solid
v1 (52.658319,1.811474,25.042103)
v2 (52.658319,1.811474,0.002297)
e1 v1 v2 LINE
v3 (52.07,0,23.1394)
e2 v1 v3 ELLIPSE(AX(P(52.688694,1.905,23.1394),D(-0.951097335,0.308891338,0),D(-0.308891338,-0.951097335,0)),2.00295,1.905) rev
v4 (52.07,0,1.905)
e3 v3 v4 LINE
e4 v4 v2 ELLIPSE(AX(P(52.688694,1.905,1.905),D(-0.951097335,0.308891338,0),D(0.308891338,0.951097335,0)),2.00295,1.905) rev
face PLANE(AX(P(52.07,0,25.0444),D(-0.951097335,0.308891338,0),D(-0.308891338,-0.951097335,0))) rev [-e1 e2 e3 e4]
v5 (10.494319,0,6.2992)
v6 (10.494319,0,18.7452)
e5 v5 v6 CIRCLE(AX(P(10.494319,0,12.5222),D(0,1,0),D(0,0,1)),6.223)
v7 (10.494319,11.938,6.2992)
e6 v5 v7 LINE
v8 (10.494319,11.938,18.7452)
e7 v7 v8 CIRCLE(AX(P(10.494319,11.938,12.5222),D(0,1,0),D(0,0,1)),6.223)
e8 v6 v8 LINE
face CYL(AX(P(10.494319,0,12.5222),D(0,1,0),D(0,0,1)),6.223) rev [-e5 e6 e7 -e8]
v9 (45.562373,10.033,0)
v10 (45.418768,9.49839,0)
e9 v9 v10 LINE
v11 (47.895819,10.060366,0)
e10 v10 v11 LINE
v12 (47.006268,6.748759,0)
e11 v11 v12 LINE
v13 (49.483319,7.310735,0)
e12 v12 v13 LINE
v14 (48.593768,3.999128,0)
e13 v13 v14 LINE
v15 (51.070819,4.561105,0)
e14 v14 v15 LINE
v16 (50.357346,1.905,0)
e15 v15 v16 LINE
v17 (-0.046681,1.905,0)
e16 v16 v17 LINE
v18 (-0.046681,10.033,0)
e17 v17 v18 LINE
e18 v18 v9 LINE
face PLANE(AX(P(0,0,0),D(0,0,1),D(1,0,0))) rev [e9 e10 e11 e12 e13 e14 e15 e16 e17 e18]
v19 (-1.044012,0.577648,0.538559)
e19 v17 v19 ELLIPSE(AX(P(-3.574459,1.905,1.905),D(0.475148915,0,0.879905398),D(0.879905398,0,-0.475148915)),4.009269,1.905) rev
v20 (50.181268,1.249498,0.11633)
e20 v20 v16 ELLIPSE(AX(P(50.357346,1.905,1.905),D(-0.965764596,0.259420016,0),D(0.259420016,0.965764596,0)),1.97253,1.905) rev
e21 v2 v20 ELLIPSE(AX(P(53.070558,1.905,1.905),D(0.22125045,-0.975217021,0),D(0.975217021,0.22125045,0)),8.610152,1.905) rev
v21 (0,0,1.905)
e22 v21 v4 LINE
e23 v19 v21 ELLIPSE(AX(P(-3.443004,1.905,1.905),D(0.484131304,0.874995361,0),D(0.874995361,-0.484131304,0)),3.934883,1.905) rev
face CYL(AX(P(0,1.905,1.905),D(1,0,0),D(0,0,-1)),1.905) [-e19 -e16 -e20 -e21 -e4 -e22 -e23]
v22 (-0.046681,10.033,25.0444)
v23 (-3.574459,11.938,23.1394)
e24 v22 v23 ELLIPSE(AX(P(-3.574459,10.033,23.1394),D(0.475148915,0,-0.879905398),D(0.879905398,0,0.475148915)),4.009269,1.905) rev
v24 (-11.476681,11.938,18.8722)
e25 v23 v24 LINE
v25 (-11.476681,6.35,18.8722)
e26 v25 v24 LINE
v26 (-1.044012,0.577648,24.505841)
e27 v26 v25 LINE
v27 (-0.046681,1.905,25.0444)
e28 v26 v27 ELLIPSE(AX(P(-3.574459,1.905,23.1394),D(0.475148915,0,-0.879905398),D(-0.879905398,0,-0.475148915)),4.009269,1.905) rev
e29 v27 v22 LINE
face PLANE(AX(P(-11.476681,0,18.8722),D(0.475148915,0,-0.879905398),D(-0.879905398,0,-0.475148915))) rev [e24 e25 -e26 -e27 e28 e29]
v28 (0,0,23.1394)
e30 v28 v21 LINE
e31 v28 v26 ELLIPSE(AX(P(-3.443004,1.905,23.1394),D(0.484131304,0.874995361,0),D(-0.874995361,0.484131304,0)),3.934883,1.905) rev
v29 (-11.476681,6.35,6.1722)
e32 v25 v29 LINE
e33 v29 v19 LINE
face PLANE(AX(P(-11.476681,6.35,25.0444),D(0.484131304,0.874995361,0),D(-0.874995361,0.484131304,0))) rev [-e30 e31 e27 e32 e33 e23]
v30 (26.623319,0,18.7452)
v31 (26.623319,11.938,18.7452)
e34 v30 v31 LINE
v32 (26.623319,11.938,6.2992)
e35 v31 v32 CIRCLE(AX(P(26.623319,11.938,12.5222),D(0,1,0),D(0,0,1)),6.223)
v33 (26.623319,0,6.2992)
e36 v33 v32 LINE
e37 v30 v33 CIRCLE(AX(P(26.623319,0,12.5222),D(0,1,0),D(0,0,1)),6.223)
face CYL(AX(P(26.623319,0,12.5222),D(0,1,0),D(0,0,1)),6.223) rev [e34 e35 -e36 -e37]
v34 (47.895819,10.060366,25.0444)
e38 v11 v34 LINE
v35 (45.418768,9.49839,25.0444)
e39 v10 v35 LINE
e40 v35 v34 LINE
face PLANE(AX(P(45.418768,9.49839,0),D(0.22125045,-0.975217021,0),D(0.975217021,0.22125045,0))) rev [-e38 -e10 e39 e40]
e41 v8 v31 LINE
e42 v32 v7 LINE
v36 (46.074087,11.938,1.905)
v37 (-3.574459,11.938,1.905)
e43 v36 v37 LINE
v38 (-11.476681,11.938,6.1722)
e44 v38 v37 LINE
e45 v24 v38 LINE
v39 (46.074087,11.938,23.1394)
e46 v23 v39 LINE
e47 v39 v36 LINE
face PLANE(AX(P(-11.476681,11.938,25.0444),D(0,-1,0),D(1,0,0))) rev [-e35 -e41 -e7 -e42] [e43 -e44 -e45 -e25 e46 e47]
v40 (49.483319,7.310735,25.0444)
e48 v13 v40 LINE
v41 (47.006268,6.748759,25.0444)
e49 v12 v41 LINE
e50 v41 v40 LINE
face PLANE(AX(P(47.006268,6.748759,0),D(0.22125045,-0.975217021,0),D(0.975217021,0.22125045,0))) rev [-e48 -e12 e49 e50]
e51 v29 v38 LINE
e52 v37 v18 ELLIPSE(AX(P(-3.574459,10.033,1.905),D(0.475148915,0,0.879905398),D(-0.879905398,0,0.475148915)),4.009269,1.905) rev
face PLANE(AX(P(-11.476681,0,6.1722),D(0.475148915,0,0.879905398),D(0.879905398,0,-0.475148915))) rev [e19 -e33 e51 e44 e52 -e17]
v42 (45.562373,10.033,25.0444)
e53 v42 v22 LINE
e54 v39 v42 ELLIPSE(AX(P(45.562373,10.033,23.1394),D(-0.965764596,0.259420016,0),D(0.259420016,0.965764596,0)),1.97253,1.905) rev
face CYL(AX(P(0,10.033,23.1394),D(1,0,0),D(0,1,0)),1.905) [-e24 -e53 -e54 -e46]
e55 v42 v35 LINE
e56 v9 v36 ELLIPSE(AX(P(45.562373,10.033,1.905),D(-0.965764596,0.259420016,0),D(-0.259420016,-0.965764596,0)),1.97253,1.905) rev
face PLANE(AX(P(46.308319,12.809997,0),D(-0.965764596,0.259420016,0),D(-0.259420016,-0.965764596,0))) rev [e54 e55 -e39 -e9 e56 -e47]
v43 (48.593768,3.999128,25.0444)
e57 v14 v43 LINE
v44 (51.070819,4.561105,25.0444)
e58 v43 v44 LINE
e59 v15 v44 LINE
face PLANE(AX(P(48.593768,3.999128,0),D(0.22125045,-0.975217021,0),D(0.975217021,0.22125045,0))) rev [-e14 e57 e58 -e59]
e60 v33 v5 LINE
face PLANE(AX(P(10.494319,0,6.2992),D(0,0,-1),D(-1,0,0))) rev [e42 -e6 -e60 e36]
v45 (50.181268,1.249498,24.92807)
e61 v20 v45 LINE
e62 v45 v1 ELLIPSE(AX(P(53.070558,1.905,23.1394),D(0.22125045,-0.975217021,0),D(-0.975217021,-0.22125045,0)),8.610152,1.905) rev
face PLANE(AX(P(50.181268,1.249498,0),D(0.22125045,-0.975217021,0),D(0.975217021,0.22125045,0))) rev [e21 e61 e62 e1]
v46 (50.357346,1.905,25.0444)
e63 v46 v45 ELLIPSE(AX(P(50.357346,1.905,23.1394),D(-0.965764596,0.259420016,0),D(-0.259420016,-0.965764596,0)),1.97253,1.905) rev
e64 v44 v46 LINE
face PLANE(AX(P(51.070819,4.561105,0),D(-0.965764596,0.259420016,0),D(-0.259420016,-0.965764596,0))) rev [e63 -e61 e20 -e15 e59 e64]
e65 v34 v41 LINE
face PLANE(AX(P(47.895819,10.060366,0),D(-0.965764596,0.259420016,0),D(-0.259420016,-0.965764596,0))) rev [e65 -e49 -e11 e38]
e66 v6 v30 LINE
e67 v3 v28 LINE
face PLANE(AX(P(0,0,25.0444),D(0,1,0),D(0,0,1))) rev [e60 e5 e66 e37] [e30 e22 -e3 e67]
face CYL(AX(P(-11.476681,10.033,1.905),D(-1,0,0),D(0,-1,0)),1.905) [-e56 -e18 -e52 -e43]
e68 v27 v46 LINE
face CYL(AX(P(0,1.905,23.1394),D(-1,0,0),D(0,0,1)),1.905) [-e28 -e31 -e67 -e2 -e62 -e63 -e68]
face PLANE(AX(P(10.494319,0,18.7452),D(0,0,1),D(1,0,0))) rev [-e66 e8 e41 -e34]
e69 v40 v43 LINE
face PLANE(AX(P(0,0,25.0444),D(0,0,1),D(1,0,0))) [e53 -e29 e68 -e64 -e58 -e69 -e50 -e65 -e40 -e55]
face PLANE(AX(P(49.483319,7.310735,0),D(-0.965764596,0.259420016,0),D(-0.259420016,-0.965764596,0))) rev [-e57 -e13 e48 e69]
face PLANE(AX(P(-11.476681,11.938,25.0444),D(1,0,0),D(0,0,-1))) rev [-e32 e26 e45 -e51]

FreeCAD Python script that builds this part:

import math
import FreeCAD as App
import Part
import Sketcher
Q = App.Units.Quantity


def edges_at(feature, points):
    """Names of the edges that pass closest to the given points."""
    edges = feature.Shape.Edges
    near = lambda p: min(range(len(edges)), key=lambda i: edges[i].distToShape(Part.Vertex(*p))[0])
    return sorted({f"Edge{near(p) + 1}" for p in points})

doc = App.newDocument("Part")
body = doc.addObject("PartDesign::Body", "Body")

# Sketch on XY plane
sketch1 = body.newObject("Sketcher::SketchObject", "Sketch")
sketch1.AttachmentSupport = (doc.getObject("XY_Plane"), [""])
sketch1.MapMode = "FlatFace"
sketch1.addGeometry(Part.LineSegment(App.Vector(0, 0, 0), App.Vector(52.07, 0, 0)), False)
sketch1.addGeometry(Part.LineSegment(App.Vector(52.07, 0, 0), App.Vector(52.658319, 1.811474, 0)), False)
sketch1.addGeometry(Part.LineSegment(App.Vector(52.658319, 1.811474, 0), App.Vector(46.811766, 11.938, 0)), False)
sketch1.addGeometry(Part.LineSegment(App.Vector(46.811766, 11.938, 0), App.Vector(-11.476681, 11.938, 0)), False)
sketch1.addGeometry(Part.LineSegment(App.Vector(-11.476681, 11.938, 0), App.Vector(-11.476681, 6.35, 0)), False)
sketch1.addGeometry(Part.LineSegment(App.Vector(-11.476681, 6.35, 0), App.Vector(0, 0, 0)), False)
sketch1.addConstraint(Sketcher.Constraint("Coincident", 0, 2, 1, 1))
sketch1.addConstraint(Sketcher.Constraint("Coincident", 1, 2, 2, 1))
sketch1.addConstraint(Sketcher.Constraint("Coincident", 2, 2, 3, 1))
sketch1.addConstraint(Sketcher.Constraint("Coincident", 3, 2, 4, 1))
sketch1.addConstraint(Sketcher.Constraint("Coincident", 4, 2, 5, 1))
sketch1.addConstraint(Sketcher.Constraint("Coincident", 5, 2, 0, 1))
sketch1.addConstraint(Sketcher.Constraint("Horizontal", 0))
sketch1.addConstraint(Sketcher.Constraint("Horizontal", 3))
sketch1.addConstraint(Sketcher.Constraint("Vertical", 4))
sketch1.addConstraint(Sketcher.Constraint("Coincident", 5, 2, -1, 1))
sketch1.addConstraint(Sketcher.Constraint("Angle", 2, Q("120 deg")))
sketch1.addConstraint(Sketcher.Constraint("DistanceX", 0, 1, 0, 2, Q("2.05 in")))
sketch1.addConstraint(Sketcher.Constraint("DistanceY", 4, 2, 4, 1, Q("0.22 in")))
sketch1.addConstraint(Sketcher.Constraint("DistanceY", -1, 1, 2, 2, Q("0.47 in")))
sketch1.addConstraint(Sketcher.Constraint("DistanceX", 3, 2, 1, 2, Q("2.525 in")))
sketch1.addConstraint(Sketcher.Constraint("DistanceX", 3, 2, 3, 1, 58.288447))
sketch1.addConstraint(Sketcher.Constraint("DistanceX", -1, 1, 1, 2, 52.658319))
pad1 = body.newObject("PartDesign::Pad", "Pad")
pad1.Profile = sketch1
pad1.Length = Q("0.986 in")

# Sketch on XY plane
sketch2 = body.newObject("Sketcher::SketchObject", "Sketch001")
sketch2.AttachmentSupport = (doc.getObject("XY_Plane"), [""])
sketch2.MapMode = "FlatFace"
sketch2.AttachmentOffset = App.Placement(App.Vector(0, 0, 0.986 * 25.4), App.Rotation())
sketch2.addGeometry(Part.LineSegment(App.Vector(51.070819, 4.561105, 0), App.Vector(50.181268, 1.249498, 0)), False)
sketch2.addGeometry(Part.LineSegment(App.Vector(50.181268, 1.249498, 0), App.Vector(52.658319, 1.811474, 0)), False)
sketch2.addGeometry(Part.LineSegment(App.Vector(52.658319, 1.811474, 0), App.Vector(51.070819, 4.561105, 0)), False)
sketch2.addConstraint(Sketcher.Constraint("Coincident", 0, 2, 1, 1))
sketch2.addConstraint(Sketcher.Constraint("Coincident", 1, 2, 2, 1))
sketch2.addConstraint(Sketcher.Constraint("Coincident", 2, 2, 0, 1))
sketch2.addConstraint(Sketcher.Constraint("Angle", 2, Q("120 deg")))
sketch2.addConstraint(Sketcher.Constraint("Distance", 1, Q("0.1 in")))
sketch2.addConstraint(Sketcher.Constraint("Distance", 0, Q("0.135 in")))
sketch2.addConstraint(Sketcher.Constraint("Distance", 2, Q("0.125 in")))
sketch2.addConstraint(Sketcher.Constraint("DistanceX", -1, 1, 1, 2, 52.658319))
sketch2.addConstraint(Sketcher.Constraint("DistanceY", -1, 1, 0, 2, 1.249498))
pocket1 = body.newObject("PartDesign::Pocket", "Pocket")
pocket1.Profile = sketch2
pocket1.Type = "ThroughAll"
doc.recompute()

datumline = body.newObject("PartDesign::Line", "DatumLine")
datumline.Placement = App.Placement(App.Vector(0, 0, 0), App.Rotation(App.Vector(0, 0, 1), App.Vector(-0.5, 0.866025404, 0)))
linearpattern = body.newObject("PartDesign::LinearPattern", "LinearPattern")
linearpattern.Originals = [pocket1]
linearpattern.Direction = (datumline, [""])
linearpattern.Mode = "offset"
linearpattern.Offset = Q("0.125 in")
linearpattern.Occurrences = 11
body.Tip = linearpattern

# Sketch on XZ plane
sketch3 = body.newObject("Sketcher::SketchObject", "Sketch002")
sketch3.AttachmentSupport = (doc.getObject("XZ_Plane"), [""])
sketch3.MapMode = "FlatFace"
sketch3.AttachmentOffset = App.Placement(App.Vector(0, 0, -0.47 * 25.4), App.Rotation())
sketch3.addGeometry(Part.LineSegment(App.Vector(26.623319, 6.2992, 0), App.Vector(10.494319, 6.2992, 0)), False)
sketch3.addGeometry(Part.ArcOfCircle(Part.Circle(App.Vector(10.494319, 12.5222, 0), App.Vector(0, 0, 1), 6.223), math.radians(90), math.radians(270)), False)
sketch3.addGeometry(Part.LineSegment(App.Vector(10.494319, 18.7452, 0), App.Vector(26.623319, 18.7452, 0)), False)
sketch3.addGeometry(Part.ArcOfCircle(Part.Circle(App.Vector(26.623319, 12.5222, 0), App.Vector(0, 0, 1), 6.223), math.radians(-90), math.radians(90)), False)
sketch3.addGeometry(Part.LineSegment(App.Vector(-11.476681, 6.1722, 0), App.Vector(-0.046681, 0, 0)), False)
sketch3.addGeometry(Part.LineSegment(App.Vector(-0.046681, 0, 0), App.Vector(-11.476681, 0, 0)), False)
sketch3.addGeometry(Part.LineSegment(App.Vector(-11.476681, 0, 0), App.Vector(-11.476681, 6.1722, 0)), False)
sketch3.addGeometry(Part.LineSegment(App.Vector(-11.476681, 25.0444, 0), App.Vector(-0.046681, 25.0444, 0)), False)
sketch3.addGeometry(Part.LineSegment(App.Vector(-0.046681, 25.0444, 0), App.Vector(-11.476681, 18.8722, 0)), False)
sketch3.addGeometry(Part.LineSegment(App.Vector(-11.476681, 18.8722, 0), App.Vector(-11.476681, 25.0444, 0)), False)
sketch3.addConstraint(Sketcher.Constraint("Tangent", 0, 2, 1, 2))
sketch3.addConstraint(Sketcher.Constraint("Tangent", 1, 1, 2, 1))
sketch3.addConstraint(Sketcher.Constraint("Tangent", 2, 2, 3, 2))
sketch3.addConstraint(Sketcher.Constraint("Tangent", 3, 1, 0, 1))
sketch3.addConstraint(Sketcher.Constraint("Coincident", 4, 2, 5, 1))
sketch3.addConstraint(Sketcher.Constraint("Coincident", 5, 2, 6, 1))
sketch3.addConstraint(Sketcher.Constraint("Coincident", 6, 2, 4, 1))
sketch3.addConstraint(Sketcher.Constraint("Coincident", 7, 2, 8, 1))
sketch3.addConstraint(Sketcher.Constraint("Coincident", 8, 2, 9, 1))
sketch3.addConstraint(Sketcher.Constraint("Coincident", 9, 2, 7, 1))
sketch3.addConstraint(Sketcher.Constraint("Horizontal", 0))
sketch3.addConstraint(Sketcher.Constraint("Horizontal", 2))
sketch3.addConstraint(Sketcher.Constraint("Horizontal", 5))
sketch3.addConstraint(Sketcher.Constraint("Vertical", 6))
sketch3.addConstraint(Sketcher.Constraint("Horizontal", 7))
sketch3.addConstraint(Sketcher.Constraint("Vertical", 9))
sketch3.addConstraint(Sketcher.Constraint("PointOnObject", 4, 2, -1))
sketch3.addConstraint(Sketcher.Constraint("Vertical", 4, 2, 7, 2))
sketch3.addConstraint(Sketcher.Constraint("Vertical", 6, 2, 8, 2))
sketch3.addConstraint(Sketcher.Constraint("Equal", 6, 9))
sketch3.addConstraint(Sketcher.Constraint("Radius", 1, Q("0.245 in")))
sketch3.addConstraint(Sketcher.Constraint("DistanceX", 5, 2, 5, 1, Q("0.45 in")))
sketch3.addConstraint(Sketcher.Constraint("DistanceX", 5, 2, 3, 1, Q("1.5 in")))
sketch3.addConstraint(Sketcher.Constraint("DistanceY", 6, 2, 8, 2, Q("0.5 in")))
sketch3.addConstraint(Sketcher.Constraint("DistanceX", 0, 2, 0, 1, Q("0.635 in")))
sketch3.addConstraint(Sketcher.Constraint("DistanceY", 6, 1, 6, 2, Q("0.243 in")))
sketch3.addConstraint(Sketcher.Constraint("DistanceY", 6, 2, 1, 3, Q("0.25 in")))
sketch3.addConstraint(Sketcher.Constraint("DistanceX", -1, 1, 1, 3, 10.494319))
pocket2 = body.newObject("PartDesign::Pocket", "Pocket001")
pocket2.Profile = sketch3
pocket2.Type = "ThroughAll"
pocket2.Reversed = True
doc.recompute()

fillet = body.newObject("PartDesign::Fillet", "Fillet")
fillet.Base = (pocket2, edges_at(pocket2, [
    (23.014, 11.938, 25.044),
    (23.014, 11.938, 0),
    (26.035, 0, 0),
    (26.035, 0, 25.044),
]))
fillet.Radius = Q("0.075 in")

doc.recompute()
